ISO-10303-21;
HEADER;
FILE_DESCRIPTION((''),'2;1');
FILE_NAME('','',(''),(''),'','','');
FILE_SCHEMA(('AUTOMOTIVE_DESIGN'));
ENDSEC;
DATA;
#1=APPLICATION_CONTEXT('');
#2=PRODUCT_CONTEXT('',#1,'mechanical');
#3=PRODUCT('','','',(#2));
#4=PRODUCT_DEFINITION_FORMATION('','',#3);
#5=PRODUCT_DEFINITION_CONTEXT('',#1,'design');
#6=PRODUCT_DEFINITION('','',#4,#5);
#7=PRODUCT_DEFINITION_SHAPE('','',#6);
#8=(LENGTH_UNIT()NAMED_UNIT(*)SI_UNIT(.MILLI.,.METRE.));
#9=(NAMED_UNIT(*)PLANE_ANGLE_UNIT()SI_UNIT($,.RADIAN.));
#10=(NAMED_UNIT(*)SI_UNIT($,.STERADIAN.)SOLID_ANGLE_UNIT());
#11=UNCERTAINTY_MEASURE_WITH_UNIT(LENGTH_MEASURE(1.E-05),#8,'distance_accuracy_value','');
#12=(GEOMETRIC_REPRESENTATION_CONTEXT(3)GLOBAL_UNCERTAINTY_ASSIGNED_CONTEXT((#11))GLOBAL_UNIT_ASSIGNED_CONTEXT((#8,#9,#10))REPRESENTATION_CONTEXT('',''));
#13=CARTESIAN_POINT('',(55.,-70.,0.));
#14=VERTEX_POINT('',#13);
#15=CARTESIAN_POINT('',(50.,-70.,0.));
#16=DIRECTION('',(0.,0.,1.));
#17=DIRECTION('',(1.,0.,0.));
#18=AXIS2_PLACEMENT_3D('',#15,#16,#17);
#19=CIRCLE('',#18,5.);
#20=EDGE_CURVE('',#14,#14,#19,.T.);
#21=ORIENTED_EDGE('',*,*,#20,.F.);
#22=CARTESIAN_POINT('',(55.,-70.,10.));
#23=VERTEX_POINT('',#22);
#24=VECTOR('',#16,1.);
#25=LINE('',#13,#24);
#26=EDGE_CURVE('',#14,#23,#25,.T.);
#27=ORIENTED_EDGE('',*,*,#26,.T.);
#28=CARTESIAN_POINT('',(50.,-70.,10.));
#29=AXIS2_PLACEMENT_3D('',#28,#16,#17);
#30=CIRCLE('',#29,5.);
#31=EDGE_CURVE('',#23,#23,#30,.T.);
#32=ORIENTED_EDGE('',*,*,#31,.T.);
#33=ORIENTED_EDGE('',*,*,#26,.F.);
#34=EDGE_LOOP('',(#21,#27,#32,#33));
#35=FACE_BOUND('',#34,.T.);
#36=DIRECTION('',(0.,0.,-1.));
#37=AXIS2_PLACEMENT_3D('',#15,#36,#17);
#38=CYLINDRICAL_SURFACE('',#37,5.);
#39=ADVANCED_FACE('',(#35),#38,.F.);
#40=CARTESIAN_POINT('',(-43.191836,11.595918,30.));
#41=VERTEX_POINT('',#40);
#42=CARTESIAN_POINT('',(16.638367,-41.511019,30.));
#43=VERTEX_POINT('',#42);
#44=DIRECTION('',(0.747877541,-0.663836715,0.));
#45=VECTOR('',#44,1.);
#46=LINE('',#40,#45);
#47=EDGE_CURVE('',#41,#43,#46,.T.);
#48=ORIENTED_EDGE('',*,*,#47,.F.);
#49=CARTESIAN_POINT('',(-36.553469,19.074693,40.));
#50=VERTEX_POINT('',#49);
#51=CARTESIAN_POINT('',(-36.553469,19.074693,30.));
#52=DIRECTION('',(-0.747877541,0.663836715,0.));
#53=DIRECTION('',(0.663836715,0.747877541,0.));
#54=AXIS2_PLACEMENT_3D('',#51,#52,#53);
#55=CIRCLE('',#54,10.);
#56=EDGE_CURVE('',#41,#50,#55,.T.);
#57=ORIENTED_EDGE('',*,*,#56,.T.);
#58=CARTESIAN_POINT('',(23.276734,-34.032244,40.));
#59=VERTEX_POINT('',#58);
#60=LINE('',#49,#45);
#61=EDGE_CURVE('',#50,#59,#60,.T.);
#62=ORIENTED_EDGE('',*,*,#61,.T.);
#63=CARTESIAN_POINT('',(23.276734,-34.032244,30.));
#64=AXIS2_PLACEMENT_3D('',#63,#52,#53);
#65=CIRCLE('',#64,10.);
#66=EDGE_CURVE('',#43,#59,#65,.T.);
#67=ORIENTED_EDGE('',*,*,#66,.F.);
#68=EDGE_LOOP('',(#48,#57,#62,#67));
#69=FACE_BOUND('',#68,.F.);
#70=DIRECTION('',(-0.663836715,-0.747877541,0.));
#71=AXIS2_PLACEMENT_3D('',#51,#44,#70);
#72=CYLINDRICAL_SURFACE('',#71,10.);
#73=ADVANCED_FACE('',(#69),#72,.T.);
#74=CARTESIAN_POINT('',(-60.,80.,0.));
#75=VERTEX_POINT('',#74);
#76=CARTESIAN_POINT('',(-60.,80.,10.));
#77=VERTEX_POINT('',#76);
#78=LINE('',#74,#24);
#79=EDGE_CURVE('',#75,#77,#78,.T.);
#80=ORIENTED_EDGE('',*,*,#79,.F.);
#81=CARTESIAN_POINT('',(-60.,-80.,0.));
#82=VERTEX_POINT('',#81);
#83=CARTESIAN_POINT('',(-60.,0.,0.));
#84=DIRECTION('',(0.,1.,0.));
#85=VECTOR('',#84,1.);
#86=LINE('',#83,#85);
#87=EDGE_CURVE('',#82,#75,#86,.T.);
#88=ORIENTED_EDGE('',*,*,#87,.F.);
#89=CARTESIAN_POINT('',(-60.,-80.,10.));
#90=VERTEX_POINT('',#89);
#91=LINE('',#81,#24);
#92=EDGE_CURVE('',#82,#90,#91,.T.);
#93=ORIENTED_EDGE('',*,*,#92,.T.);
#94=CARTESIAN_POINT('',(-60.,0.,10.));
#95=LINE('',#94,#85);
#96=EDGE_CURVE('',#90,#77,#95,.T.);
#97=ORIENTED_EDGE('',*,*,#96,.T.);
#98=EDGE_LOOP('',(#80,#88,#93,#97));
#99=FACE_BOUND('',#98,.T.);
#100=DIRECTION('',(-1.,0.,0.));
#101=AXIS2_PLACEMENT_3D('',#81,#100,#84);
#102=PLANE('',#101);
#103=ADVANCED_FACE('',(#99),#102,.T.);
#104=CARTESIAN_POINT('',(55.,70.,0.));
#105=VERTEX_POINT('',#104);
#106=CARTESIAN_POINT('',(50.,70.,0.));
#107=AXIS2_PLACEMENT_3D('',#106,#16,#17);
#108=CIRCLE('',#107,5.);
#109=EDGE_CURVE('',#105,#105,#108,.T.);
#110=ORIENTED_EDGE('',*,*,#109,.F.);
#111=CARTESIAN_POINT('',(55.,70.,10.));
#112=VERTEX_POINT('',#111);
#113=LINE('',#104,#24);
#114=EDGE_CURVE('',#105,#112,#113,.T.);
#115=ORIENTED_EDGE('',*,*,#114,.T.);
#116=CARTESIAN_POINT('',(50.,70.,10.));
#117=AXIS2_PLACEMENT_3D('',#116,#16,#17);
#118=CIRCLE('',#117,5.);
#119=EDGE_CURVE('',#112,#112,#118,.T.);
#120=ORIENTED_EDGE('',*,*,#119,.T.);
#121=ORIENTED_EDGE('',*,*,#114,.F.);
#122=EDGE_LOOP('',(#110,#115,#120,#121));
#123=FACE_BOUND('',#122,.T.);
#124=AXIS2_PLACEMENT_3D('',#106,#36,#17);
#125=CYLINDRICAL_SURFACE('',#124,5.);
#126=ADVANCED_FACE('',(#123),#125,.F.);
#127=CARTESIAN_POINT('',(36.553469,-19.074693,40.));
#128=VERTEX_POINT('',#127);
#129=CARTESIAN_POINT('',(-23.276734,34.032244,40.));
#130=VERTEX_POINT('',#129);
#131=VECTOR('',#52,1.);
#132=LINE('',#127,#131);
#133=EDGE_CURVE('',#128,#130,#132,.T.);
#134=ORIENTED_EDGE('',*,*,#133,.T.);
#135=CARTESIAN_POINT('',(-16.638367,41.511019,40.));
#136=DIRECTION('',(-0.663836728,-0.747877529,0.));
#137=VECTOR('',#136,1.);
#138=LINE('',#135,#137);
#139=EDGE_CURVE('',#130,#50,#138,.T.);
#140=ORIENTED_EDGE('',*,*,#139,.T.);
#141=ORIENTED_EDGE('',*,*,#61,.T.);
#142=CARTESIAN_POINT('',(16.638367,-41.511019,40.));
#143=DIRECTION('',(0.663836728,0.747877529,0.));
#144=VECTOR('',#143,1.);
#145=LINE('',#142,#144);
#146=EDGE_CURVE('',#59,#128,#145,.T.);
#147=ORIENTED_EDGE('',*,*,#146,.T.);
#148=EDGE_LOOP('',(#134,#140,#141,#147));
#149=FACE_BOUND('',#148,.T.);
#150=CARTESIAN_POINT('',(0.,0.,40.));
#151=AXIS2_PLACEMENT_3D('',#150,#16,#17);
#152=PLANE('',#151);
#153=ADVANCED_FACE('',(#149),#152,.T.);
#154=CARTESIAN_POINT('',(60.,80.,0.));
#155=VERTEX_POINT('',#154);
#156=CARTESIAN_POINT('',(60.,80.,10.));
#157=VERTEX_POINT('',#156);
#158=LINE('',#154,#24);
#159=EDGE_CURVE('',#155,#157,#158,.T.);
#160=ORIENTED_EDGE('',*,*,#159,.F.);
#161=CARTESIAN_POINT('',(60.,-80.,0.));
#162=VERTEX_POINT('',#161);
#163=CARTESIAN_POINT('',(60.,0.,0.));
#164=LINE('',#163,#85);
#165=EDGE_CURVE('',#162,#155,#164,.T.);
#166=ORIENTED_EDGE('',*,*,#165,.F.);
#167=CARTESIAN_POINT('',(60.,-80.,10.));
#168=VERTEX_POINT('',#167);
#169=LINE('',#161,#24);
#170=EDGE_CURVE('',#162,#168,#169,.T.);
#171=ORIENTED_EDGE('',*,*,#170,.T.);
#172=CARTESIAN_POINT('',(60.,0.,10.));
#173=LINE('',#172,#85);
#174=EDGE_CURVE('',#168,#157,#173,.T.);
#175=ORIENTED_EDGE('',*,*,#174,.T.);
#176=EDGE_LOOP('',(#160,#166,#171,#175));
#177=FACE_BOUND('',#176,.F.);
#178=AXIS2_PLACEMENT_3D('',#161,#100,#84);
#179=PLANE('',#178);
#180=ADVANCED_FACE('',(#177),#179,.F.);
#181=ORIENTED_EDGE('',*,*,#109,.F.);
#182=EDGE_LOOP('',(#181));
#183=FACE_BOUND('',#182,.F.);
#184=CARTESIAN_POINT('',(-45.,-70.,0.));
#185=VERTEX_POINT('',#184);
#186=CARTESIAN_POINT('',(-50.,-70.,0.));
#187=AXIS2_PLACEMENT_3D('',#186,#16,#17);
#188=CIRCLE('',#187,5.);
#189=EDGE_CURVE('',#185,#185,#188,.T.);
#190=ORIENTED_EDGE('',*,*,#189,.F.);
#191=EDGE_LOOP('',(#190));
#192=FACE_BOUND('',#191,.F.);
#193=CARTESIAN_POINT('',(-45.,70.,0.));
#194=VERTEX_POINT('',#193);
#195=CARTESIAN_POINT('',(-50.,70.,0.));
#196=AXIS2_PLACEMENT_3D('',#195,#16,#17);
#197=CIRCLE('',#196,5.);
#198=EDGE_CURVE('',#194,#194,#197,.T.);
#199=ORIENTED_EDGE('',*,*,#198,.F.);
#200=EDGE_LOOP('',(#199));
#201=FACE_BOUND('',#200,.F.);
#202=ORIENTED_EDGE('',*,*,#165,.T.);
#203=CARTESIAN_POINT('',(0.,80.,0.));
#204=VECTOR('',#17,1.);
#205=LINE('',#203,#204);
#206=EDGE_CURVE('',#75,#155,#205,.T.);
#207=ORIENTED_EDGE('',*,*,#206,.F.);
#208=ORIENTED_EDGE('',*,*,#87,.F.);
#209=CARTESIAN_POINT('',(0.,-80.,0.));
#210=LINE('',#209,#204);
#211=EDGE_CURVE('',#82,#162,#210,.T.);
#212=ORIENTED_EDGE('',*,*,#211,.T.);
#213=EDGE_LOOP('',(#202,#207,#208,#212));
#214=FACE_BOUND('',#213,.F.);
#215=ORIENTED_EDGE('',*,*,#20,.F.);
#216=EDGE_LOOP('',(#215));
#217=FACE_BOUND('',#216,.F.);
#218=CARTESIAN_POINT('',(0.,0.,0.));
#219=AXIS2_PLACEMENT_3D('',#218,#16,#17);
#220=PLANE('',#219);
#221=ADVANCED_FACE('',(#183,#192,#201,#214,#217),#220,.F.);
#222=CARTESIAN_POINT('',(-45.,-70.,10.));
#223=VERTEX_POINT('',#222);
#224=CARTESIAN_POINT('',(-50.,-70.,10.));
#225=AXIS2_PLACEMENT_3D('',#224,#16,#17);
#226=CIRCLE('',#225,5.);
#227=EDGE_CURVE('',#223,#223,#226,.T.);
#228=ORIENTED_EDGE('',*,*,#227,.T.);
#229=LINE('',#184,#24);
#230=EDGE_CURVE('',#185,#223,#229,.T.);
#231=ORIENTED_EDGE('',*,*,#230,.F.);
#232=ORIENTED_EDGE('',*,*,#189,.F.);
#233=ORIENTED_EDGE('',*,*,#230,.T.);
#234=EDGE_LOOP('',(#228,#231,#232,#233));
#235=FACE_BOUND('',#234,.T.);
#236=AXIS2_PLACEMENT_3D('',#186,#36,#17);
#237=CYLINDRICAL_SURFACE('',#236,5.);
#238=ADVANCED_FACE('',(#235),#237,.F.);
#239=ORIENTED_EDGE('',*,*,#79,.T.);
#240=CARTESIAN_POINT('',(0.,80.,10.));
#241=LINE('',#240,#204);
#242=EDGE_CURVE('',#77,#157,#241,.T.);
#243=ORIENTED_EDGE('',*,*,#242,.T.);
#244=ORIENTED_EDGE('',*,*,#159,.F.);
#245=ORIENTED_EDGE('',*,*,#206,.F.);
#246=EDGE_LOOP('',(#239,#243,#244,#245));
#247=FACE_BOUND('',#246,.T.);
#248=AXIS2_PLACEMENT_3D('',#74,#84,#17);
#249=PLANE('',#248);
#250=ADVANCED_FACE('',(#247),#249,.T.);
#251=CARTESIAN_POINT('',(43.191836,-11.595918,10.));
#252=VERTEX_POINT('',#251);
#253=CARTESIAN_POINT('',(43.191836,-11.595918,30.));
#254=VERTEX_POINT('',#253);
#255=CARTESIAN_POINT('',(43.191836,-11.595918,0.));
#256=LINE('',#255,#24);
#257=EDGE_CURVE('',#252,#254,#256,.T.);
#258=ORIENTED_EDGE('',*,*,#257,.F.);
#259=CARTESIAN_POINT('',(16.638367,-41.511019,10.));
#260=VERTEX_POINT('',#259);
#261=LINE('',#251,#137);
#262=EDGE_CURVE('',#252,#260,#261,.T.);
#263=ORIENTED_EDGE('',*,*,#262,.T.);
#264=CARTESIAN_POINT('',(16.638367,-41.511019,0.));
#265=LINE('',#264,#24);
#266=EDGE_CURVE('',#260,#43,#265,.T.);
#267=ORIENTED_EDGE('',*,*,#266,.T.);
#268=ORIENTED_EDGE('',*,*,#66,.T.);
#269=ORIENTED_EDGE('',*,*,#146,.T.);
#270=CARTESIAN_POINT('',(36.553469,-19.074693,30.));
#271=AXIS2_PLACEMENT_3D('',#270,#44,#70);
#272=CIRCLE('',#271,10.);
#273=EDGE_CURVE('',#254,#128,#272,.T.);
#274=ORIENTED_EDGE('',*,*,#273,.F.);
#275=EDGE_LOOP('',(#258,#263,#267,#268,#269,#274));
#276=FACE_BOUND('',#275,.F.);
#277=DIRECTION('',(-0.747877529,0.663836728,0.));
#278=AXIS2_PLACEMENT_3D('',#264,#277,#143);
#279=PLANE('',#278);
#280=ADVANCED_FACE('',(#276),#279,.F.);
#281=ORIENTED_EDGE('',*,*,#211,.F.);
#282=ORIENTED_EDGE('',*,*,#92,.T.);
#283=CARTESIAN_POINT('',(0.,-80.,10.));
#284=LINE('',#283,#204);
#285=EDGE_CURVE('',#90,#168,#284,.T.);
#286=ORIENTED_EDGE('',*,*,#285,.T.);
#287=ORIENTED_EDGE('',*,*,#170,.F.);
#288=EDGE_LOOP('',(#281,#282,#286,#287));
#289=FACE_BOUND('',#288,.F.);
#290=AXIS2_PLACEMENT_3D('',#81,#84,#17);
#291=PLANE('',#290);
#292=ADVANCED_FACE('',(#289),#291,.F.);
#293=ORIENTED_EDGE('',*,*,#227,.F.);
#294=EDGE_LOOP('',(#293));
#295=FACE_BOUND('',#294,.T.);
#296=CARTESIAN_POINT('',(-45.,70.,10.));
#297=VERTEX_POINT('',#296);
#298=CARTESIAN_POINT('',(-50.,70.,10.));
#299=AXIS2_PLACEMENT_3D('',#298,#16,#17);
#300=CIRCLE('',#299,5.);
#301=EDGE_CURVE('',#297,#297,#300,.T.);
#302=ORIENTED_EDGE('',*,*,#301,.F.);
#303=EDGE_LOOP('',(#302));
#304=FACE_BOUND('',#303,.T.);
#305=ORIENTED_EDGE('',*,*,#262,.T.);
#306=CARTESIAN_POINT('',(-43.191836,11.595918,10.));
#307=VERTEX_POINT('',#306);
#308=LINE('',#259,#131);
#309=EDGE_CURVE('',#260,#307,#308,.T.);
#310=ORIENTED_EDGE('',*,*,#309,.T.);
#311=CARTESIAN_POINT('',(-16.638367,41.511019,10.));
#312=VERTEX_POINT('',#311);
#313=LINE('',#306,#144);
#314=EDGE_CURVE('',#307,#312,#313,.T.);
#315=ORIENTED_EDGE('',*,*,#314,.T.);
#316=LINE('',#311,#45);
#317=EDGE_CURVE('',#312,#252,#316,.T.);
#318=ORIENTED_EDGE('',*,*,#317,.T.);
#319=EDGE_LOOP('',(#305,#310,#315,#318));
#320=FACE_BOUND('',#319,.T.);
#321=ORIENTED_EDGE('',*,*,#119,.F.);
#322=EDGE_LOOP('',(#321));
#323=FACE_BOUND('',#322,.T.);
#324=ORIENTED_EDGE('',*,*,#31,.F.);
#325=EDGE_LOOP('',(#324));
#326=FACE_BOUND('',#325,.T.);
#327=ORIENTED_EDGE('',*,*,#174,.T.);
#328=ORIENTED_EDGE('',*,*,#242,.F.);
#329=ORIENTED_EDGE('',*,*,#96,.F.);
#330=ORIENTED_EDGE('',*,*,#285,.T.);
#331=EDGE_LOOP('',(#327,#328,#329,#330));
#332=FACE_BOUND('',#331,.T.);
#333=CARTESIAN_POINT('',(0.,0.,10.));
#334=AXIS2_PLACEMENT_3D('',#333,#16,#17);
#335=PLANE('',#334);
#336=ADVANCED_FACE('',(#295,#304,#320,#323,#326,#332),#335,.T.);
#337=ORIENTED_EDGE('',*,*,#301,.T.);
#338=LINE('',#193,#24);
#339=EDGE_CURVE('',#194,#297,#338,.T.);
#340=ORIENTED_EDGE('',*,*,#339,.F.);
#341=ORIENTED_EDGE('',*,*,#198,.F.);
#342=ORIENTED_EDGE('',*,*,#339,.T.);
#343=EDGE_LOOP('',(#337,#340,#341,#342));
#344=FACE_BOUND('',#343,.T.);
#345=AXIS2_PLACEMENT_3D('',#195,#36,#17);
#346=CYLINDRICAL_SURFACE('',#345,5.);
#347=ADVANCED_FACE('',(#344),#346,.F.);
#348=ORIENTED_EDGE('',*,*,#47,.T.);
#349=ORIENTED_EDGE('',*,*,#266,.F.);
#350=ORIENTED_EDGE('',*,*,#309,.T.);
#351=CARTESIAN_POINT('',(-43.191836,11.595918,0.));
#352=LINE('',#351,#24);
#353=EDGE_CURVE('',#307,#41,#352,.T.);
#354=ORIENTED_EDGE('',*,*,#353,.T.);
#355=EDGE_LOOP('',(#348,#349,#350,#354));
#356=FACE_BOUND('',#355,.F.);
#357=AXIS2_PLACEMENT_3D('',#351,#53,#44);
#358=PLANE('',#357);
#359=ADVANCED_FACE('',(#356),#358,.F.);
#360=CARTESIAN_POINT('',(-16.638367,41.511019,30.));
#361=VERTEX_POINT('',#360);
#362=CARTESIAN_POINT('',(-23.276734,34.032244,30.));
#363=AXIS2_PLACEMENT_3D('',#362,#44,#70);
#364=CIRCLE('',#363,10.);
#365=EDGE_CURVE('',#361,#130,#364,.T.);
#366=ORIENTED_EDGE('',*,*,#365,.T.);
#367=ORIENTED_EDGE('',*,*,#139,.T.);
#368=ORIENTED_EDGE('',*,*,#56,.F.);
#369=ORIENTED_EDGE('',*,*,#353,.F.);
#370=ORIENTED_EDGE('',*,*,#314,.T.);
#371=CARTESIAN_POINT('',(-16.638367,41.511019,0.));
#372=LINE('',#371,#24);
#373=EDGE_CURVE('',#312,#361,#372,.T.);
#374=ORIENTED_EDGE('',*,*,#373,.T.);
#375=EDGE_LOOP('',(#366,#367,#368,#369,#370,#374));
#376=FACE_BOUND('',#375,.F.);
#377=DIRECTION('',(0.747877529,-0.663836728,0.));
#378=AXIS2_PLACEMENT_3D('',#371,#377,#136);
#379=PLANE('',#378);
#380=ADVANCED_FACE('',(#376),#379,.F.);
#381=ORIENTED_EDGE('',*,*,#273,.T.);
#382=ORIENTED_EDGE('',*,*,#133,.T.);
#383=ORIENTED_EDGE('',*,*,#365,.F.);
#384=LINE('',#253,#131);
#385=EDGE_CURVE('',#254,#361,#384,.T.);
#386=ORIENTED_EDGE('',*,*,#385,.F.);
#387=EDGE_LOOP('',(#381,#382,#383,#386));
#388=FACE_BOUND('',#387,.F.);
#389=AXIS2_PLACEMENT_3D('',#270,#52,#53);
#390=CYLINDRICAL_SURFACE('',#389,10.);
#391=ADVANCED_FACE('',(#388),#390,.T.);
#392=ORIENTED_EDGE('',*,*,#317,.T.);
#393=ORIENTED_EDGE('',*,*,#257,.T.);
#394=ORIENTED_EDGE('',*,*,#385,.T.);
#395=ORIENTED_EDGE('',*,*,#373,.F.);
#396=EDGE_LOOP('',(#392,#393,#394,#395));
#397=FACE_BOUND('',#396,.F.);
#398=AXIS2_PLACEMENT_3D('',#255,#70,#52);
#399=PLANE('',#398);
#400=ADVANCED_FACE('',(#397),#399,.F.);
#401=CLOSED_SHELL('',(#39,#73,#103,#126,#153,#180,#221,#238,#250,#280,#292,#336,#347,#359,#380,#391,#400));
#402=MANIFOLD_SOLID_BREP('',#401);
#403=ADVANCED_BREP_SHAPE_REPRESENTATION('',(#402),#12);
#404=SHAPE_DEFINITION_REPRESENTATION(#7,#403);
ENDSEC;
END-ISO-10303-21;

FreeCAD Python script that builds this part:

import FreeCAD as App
import Part
import Sketcher
from FreeCAD import Vector
Q = App.Units.Quantity


def edges_at(feature, points):
    """Names of the edges that pass closest to the given points."""
    edges = feature.Shape.Edges
    near = lambda p: min(range(len(edges)), key=lambda i: edges[i].distToShape(Part.Vertex(*p))[0])
    return sorted({f"Edge{near(p) + 1}" for p in points})

doc = App.newDocument("Part")
body = doc.addObject("PartDesign::Body", "Body")

sketch1 = body.newObject("Sketcher::SketchObject", "Sketch")
sketch1.AttachmentSupport = (doc.getObject("XY_Plane"), [""])
sketch1.MapMode = "FlatFace"
sketch1.addGeometry(Part.LineSegment(Vector(16.638367, -41.511019, 0), Vector(43.191836, -11.595918, 0)), False)
sketch1.addGeometry(Part.LineSegment(Vector(43.191836, -11.595918, 0), Vector(-16.638367, 41.511019, 0)), False)
sketch1.addGeometry(Part.LineSegment(Vector(-16.638367, 41.511019, 0), Vector(-43.191836, 11.595918, 0)), False)
sketch1.addGeometry(Part.LineSegment(Vector(-43.191836, 11.595918, 0), Vector(16.638367, -41.511019, 0)), False)
sketch1.addConstraint(Sketcher.Constraint("Coincident", 0, 2, 1, 1))
sketch1.addConstraint(Sketcher.Constraint("Coincident", 1, 2, 2, 1))
sketch1.addConstraint(Sketcher.Constraint("Coincident", 2, 2, 3, 1))
sketch1.addConstraint(Sketcher.Constraint("Coincident", 3, 2, 0, 1))
sketch1.addConstraint(Sketcher.Constraint("Symmetric", 0, 2, 2, 2, -1, 1))
sketch1.addConstraint(Sketcher.Constraint("Symmetric", 1, 2, 3, 2, -1, 1))
sketch1.addConstraint(Sketcher.Constraint("Perpendicular", 0, 1))
sketch1.addConstraint(Sketcher.Constraint("Distance", 0, Q("40 mm")))
sketch1.addConstraint(Sketcher.Constraint("Distance", 1, Q("80 mm")))
sketch1.addConstraint(Sketcher.Constraint("DistanceY", 2, 2, 1, 2, Q("29.915101 mm")))
pad1 = body.newObject("PartDesign::Pad", "Pad")
pad1.Profile = sketch1
pad1.Length = 40

sketch2 = body.newObject("Sketcher::SketchObject", "Sketch001")
sketch2.AttachmentSupport = (doc.getObject("XY_Plane"), [""])
sketch2.MapMode = "FlatFace"
sketch2.addGeometry(Part.LineSegment(Vector(-60, 80, 0), Vector(-60, -80, 0)), False)
sketch2.addGeometry(Part.LineSegment(Vector(-60, -80, 0), Vector(60, -80, 0)), False)
sketch2.addGeometry(Part.LineSegment(Vector(60, -80, 0), Vector(60, 80, 0)), False)
sketch2.addGeometry(Part.LineSegment(Vector(60, 80, 0), Vector(-60, 80, 0)), False)
sketch2.addGeometry(Part.Circle(Vector(-50, -70, 0), Vector(0, 0, 1), 5), False)
sketch2.addGeometry(Part.Circle(Vector(50, -70, 0), Vector(0, 0, 1), 5), False)
sketch2.addGeometry(Part.Circle(Vector(-50, 70, 0), Vector(0, 0, 1), 5), False)
sketch2.addGeometry(Part.LineSegment(Vector(-43.191836, 11.595918, 0), Vector(-16.638367, 41.511019, 0)), False)
sketch2.addGeometry(Part.LineSegment(Vector(-16.638367, 41.511019, 0), Vector(43.191836, -11.595918, 0)), False)
sketch2.addGeometry(Part.LineSegment(Vector(43.191836, -11.595918, 0), Vector(16.638367, -41.511019, 0)), False)
sketch2.addGeometry(Part.LineSegment(Vector(16.638367, -41.511019, 0), Vector(-43.191836, 11.595918, 0)), False)
sketch2.addGeometry(Part.Circle(Vector(50, 70, 0), Vector(0, 0, 1), 5), False)
sketch2.addConstraint(Sketcher.Constraint("Coincident", 0, 2, 1, 1))
sketch2.addConstraint(Sketcher.Constraint("Coincident", 1, 2, 2, 1))
sketch2.addConstraint(Sketcher.Constraint("Coincident", 2, 2, 3, 1))
sketch2.addConstraint(Sketcher.Constraint("Coincident", 3, 2, 0, 1))
sketch2.addConstraint(Sketcher.Constraint("Coincident", 7, 2, 8, 1))
sketch2.addConstraint(Sketcher.Constraint("Coincident", 8, 2, 9, 1))
sketch2.addConstraint(Sketcher.Constraint("Coincident", 9, 2, 10, 1))
sketch2.addConstraint(Sketcher.Constraint("Coincident", 10, 2, 7, 1))
sketch2.addConstraint(Sketcher.Constraint("Vertical", 0))
sketch2.addConstraint(Sketcher.Constraint("Horizontal", 1))
sketch2.addConstraint(Sketcher.Constraint("Vertical", 2))
sketch2.addConstraint(Sketcher.Constraint("Horizontal", 3))
sketch2.addConstraint(Sketcher.Constraint("Equal", 4, 5))
sketch2.addConstraint(Sketcher.Constraint("Equal", 5, 6))
sketch2.addConstraint(Sketcher.Constraint("Equal", 6, 11))
sketch2.addConstraint(Sketcher.Constraint("Symmetric", 5, 3, 6, 3, -1, 1))
sketch2.addConstraint(Sketcher.Constraint("Symmetric", 4, 3, 11, 3, -1, 1))
sketch2.addConstraint(Sketcher.Constraint("Symmetric", 0, 2, 2, 2, -1, 1))
sketch2.addConstraint(Sketcher.Constraint("Symmetric", 7, 2, 9, 2, -1, 1))
sketch2.addConstraint(Sketcher.Constraint("Symmetric", 8, 2, 10, 2, -1, 1))
sketch2.addConstraint(Sketcher.Constraint("Symmetric", 4, 3, 5, 3, -2))
sketch2.addConstraint(Sketcher.Constraint("Perpendicular", 7, 8))
sketch2.addConstraint(Sketcher.Constraint("Diameter", 4, Q("10 mm")))
sketch2.addConstraint(Sketcher.Constraint("DistanceX", 1, 1, 1, 2, Q("120 mm")))
sketch2.addConstraint(Sketcher.Constraint("DistanceY", 0, 2, 0, 1, Q("160 mm")))
sketch2.addConstraint(Sketcher.Constraint("Distance", 7, Q("40 mm")))
sketch2.addConstraint(Sketcher.Constraint("Distance", 8, Q("80 mm")))
sketch2.addConstraint(Sketcher.Constraint("DistanceX", 4, 3, -1, 1, Q("50 mm")))
sketch2.addConstraint(Sketcher.Constraint("DistanceY", 4, 3, -1, 1, Q("70 mm")))
sketch2.addConstraint(Sketcher.Constraint("DistanceY", 9, 2, 8, 2, Q("29.915101 mm")))
pad2 = body.newObject("PartDesign::Pad", "Pad001")
pad2.Profile = sketch2
pad2.Length = 10
doc.recompute()

fillet = body.newObject("PartDesign::Fillet", "Fillet")
fillet.Base = (pad2, edges_at(pad2, [(13.277, 14.958, 40), (-13.277, -14.958, 40)]))
fillet.Radius = 10

doc.recompute()
